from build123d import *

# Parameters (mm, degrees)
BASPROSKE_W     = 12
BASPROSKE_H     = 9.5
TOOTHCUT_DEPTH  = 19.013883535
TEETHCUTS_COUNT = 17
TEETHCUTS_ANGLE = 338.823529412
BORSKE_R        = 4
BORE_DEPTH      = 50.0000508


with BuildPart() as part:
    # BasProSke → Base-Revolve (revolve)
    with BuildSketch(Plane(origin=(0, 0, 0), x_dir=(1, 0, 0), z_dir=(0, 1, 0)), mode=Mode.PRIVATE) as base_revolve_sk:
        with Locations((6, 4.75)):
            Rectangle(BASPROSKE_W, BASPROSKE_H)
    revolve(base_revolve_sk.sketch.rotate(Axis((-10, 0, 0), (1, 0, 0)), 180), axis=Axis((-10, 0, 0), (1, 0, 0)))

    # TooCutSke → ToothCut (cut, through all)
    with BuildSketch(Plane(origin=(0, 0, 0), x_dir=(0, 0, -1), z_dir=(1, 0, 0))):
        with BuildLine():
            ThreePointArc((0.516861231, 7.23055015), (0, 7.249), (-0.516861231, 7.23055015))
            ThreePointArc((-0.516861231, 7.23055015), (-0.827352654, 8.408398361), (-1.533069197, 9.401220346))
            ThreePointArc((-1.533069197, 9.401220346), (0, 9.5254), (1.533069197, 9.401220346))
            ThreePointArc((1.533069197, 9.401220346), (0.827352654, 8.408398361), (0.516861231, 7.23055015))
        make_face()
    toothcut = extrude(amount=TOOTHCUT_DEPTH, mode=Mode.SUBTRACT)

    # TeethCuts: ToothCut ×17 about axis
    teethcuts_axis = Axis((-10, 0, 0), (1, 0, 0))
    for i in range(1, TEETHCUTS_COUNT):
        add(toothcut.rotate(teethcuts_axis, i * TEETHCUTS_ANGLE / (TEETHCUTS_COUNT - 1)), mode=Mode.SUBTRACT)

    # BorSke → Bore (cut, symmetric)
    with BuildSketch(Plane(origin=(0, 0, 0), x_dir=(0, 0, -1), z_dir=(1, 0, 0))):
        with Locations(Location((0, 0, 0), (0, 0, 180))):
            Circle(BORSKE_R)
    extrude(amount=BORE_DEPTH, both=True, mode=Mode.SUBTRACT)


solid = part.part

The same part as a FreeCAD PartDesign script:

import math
import FreeCAD as App
import Part
import Sketcher
from FreeCAD import Vector
Q = App.Units.Quantity

doc = App.newDocument("Part")
body = doc.addObject("PartDesign::Body", "Body")

sketch1 = body.newObject("Sketcher::SketchObject", "Sketch")
sketch1.AttachmentSupport = (doc.getObject("XZ_Plane"), [""])
sketch1.MapMode = "FlatFace"
sketch1.addGeometry([
    Part.LineSegment(Vector(0, -10, 0), Vector(0, 0, 0)),
    Part.LineSegment(Vector(0, 0, 0), Vector(12, 0, 0)),
    Part.LineSegment(Vector(12, 0, 0), Vector(12, -10, 0)),
    Part.LineSegment(Vector(12, -10, 0), Vector(0, -10, 0)),
], False)
sketch1.addConstraint([
    Sketcher.Constraint("Coincident", 0, 2, 1, 1),
    Sketcher.Constraint("Coincident", 1, 2, 2, 1),
    Sketcher.Constraint("Coincident", 2, 2, 3, 1),
    Sketcher.Constraint("Coincident", 3, 2, 0, 1),
    Sketcher.Constraint("Vertical", 0),
    Sketcher.Constraint("Horizontal", 1),
    Sketcher.Constraint("Vertical", 2),
    Sketcher.Constraint("Horizontal", 3),
    Sketcher.Constraint("Coincident", 0, 2, -1, 1),
    Sketcher.Constraint("DistanceX", 1, 1, 1, 2, Q("12 mm")),
    Sketcher.Constraint("DistanceY", 0, 1, 0, 2, Q("9.5 mm")),
])
revolution = body.newObject("PartDesign::Revolution", "Revolution")
revolution.Profile = sketch1
revolution.ReferenceAxis = (sketch1, ["H_Axis"])
revolution.Angle = 360

sketch2 = body.newObject("Sketcher::SketchObject", "Sketch001")
sketch2.AttachmentSupport = (doc.getObject("YZ_Plane"), [""])
sketch2.MapMode = "FlatFace"
sketch2.addGeometry([
    Part.ArcOfCircle(Part.Circle(Vector(0, 0, 0), Vector(0, 0, 1), 7.2), math.radians(-4.09), math.radians(4.09)),
    Part.ArcOfCircle(Part.Circle(Vector(7, -3.9, 0), Vector(0, 0, 1), 3.4), math.radians(44), math.radians(86)),
    Part.ArcOfCircle(Part.Circle(Vector(0, 0, 0), Vector(0, 0, 1), 9.5), math.radians(-9.26), math.radians(9.26)),
    Part.ArcOfCircle(Part.Circle(Vector(7, 3.9, 0), Vector(0, 0, 1), 3.4), math.radians(-86), math.radians(-44)),
], False)
sketch2.addConstraint([
    Sketcher.Constraint("Coincident", 0, 1, 1, 2),
    Sketcher.Constraint("Coincident", 1, 1, 2, 1),
    Sketcher.Constraint("Coincident", 2, 2, 3, 2),
    Sketcher.Constraint("Coincident", 3, 1, 0, 2),
    Sketcher.Constraint("Coincident", 0, 3, -1, 1),
    Sketcher.Constraint("Coincident", 2, 3, -1, 1),
    Sketcher.Constraint("Equal", 1, 3),
    Sketcher.Constraint("Symmetric", 1, 3, 3, 3, -1),
    Sketcher.Constraint("Radius", 1, Q("3.4 mm")),
    Sketcher.Constraint("Radius", 0, Q("7.249 mm")),
    Sketcher.Constraint("Radius", 2, Q("9.5254 mm")),
    Sketcher.Constraint("DistanceX", -1, 1, 0, 1, Q("7.23055 mm")),
    Sketcher.Constraint("DistanceX", -1, 1, 1, 1, Q("9.40122 mm")),
])
pocket1 = body.newObject("PartDesign::Pocket", "Pocket")
pocket1.Profile = sketch2
pocket1.Type = "ThroughAll"
pocket1.Reversed = True
doc.recompute()

polarpattern = body.newObject("PartDesign::PolarPattern", "PolarPattern")
polarpattern.Originals = [pocket1]
polarpattern.Axis = (doc.getObject("X_Axis"), [""])
polarpattern.Angle = 360
polarpattern.Occurrences = 17
body.Tip = polarpattern

sketch3 = body.newObject("Sketcher::SketchObject", "Sketch002")
sketch3.AttachmentSupport = (doc.getObject("YZ_Plane"), [""])
sketch3.MapMode = "FlatFace"
sketch3.addGeometry(Part.Circle(Vector(0, 0, 0), Vector(0, 0, 1), 4), False)
sketch3.addConstraint([
    Sketcher.Constraint("Coincident", 0, 3, -1, 1),
    Sketcher.Constraint("Diameter", 0, Q("8 mm")),
])
pocket2 = body.newObject("PartDesign::Pocket", "Pocket001")
pocket2.Profile = sketch3
pocket2.Length = 100.000102
pocket2.Midplane = True

doc.recompute()
